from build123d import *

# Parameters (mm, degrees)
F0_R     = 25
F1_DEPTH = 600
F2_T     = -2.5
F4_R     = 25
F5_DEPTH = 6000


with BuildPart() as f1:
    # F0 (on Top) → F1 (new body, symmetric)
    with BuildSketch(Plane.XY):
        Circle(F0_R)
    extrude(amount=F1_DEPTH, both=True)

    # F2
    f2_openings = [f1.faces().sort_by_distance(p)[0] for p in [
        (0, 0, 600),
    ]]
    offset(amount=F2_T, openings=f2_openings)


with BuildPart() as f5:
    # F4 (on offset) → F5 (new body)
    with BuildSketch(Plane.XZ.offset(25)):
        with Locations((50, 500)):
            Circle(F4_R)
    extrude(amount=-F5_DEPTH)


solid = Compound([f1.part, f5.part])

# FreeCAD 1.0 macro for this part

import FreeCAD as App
import Part
import Sketcher
Q = App.Units.Quantity


def faces_at(feature, points):
    """Names of the faces that lie closest to the given points."""
    faces = feature.Shape.Faces
    near = lambda p: min(range(len(faces)), key=lambda i: faces[i].distToShape(Part.Vertex(*p))[0])
    return sorted({f"Face{near(p) + 1}" for p in points})

doc = App.newDocument("Part")
body = doc.addObject("PartDesign::Body", "Body")

sketch1 = body.newObject("Sketcher::SketchObject", "Sketch")
sketch1.AttachmentSupport = (doc.getObject("XY_Plane"), [""])
sketch1.MapMode = "FlatFace"
sketch1.addGeometry(Part.Circle(App.Vector(0, 0, 0), App.Vector(0, 0, 1), 25), False)
sketch1.addConstraint([
    Sketcher.Constraint("Coincident", 0, 3, -1, 1),
    Sketcher.Constraint("Diameter", 0, Q("50 mm")),
])
pad1 = body.newObject("PartDesign::Pad", "Pad")
pad1.Profile = sketch1
pad1.Length = 1200
pad1.Midplane = True
doc.recompute()

thickness = body.newObject("PartDesign::Thickness", "Thickness")
thickness.Base = (pad1, faces_at(pad1, [(0, 0, 600)]))
thickness.Value = 2.5
thickness.Reversed = True
thickness.Join = "Arc"
body2 = doc.addObject("PartDesign::Body", "Body001")

sketch2 = body2.newObject("Sketcher::SketchObject", "Sketch001")
sketch2.AttachmentSupport = (doc.getObject("XZ_Plane001"), [""])
sketch2.MapMode = "FlatFace"
sketch2.AttachmentOffset = App.Placement(App.Vector(0, 0, 25), App.Rotation())
sketch2.addGeometry(Part.Circle(App.Vector(50, 500, 0), App.Vector(0, 0, 1), 25), False)
sketch2.addConstraint([
    Sketcher.Constraint("Diameter", 0, Q("50 mm")),
    Sketcher.Constraint("DistanceX", -1, 1, 0, 3, Q("50 mm")),
    Sketcher.Constraint("DistanceY", -1, 1, 0, 3, Q("500 mm")),
])
pad2 = body2.newObject("PartDesign::Pad", "Pad001")
pad2.Profile = sketch2
pad2.Length = 6000
pad2.Reversed = True

doc.recompute()
